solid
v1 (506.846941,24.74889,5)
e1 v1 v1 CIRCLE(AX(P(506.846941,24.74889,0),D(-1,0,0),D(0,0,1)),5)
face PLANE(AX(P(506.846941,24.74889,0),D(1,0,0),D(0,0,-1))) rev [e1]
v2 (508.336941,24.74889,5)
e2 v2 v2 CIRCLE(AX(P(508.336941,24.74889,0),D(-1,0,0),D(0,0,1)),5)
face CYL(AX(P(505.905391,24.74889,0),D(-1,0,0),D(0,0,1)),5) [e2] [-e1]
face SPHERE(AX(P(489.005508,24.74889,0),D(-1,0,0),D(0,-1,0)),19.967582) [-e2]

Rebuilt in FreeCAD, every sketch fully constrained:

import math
import FreeCAD as App
import Part
import Sketcher

V = App.Vector

doc = App.newDocument("Part")
body = doc.addObject("PartDesign::Body", "Body")

# Sketch on XY plane
sketch1 = doc.addObject("Sketcher::SketchObject", "Sketch")
body.addObject(sketch1)
sketch1.AttachmentSupport = (doc.XY_Plane, [""])
sketch1.MapMode = "FlatFace"
sketch1.addGeometry([
    Part.LineSegment(V(506.8, 29.7, 0), V(506.8, 24.7, 0)),
    Part.LineSegment(V(506.8, 24.7, 0), V(509, 24.7, 0)),
    Part.ArcOfCircle(Part.Circle(V(489, 24.7, 0), V(0, 0, 1), 20), math.radians(0), math.radians(14.5)),
    Part.LineSegment(V(508.3, 29.7, 0), V(506.8, 29.7, 0)),
], False)
sketch1.addGeometry(Part.LineSegment(V(489, 24.7, 0), V(509, 24.7, 0)), True)  # axis
sketch1.addConstraint([
    Sketcher.Constraint("Coincident", 0, 2, 1, 1),
    Sketcher.Constraint("Coincident", 1, 2, 2, 1),
    Sketcher.Constraint("Coincident", 2, 2, 3, 1),
    Sketcher.Constraint("Coincident", 3, 2, 0, 1),
    Sketcher.Constraint("Vertical", 0),
    Sketcher.Constraint("Horizontal", 1),
    Sketcher.Constraint("Horizontal", 3),
    Sketcher.Constraint("Horizontal", 4),
    Sketcher.Constraint("Coincident", 4, 1, 2, 3),
    Sketcher.Constraint("Coincident", 4, 2, 1, 2),
    Sketcher.Constraint("DistanceY", 0, 2, 0, 1, 5.0),
    Sketcher.Constraint("DistanceX", 3, 2, 3, 1, 1.49),
    Sketcher.Constraint("Radius", 2, 19.967582),
    Sketcher.Constraint("DistanceY", -1, 1, 2, 3, 24.74889),
    Sketcher.Constraint("DistanceX", -1, 1, 0, 2, 506.846941),
])
revolution = doc.addObject("PartDesign::Revolution", "Revolution")
body.addObject(revolution)
revolution.Profile = sketch1
revolution.ReferenceAxis = (sketch1, ["Axis0"])
revolution.Angle = 360

doc.recompute()
